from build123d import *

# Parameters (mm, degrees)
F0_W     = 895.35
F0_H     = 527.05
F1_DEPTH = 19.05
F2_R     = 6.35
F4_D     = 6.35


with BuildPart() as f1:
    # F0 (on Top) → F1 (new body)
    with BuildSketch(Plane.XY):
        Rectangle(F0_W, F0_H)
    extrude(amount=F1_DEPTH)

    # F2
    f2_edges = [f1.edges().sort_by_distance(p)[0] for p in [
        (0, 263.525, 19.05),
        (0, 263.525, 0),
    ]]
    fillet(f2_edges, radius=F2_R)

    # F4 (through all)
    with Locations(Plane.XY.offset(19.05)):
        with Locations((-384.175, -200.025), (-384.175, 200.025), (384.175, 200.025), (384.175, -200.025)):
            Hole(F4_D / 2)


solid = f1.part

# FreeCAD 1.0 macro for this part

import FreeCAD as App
import Part
import Sketcher
from FreeCAD import Vector
Q = App.Units.Quantity


def edges_at(feature, points):
    """Names of the edges that pass closest to the given points."""
    edges = feature.Shape.Edges
    near = lambda p: min(range(len(edges)), key=lambda i: edges[i].distToShape(Part.Vertex(*p))[0])
    return sorted({f"Edge{near(p) + 1}" for p in points})

doc = App.newDocument("Part")
params = doc.addObject("Spreadsheet::Sheet", "Params")
for row, (alias, value) in enumerate([
    ("sketch1_width", "35.25 in"),
    ("sketch1_height", "20.75 in"),
    ("pad1_length", "0.75 in"),
    ("fillet_radius", "0.25 in"),
    ("sketch2_diameter", "0.25 in"),
    ("hole_diameter", "0.25 in"),
], start=1):
    params.set(f"A{row}", alias)
    params.set(f"B{row}", "=" + value)
    params.setAlias(f"B{row}", alias)

body = doc.addObject("PartDesign::Body", "Body")

# Sketch on XY plane
sketch1 = body.newObject("Sketcher::SketchObject", "Sketch")
sketch1.AttachmentSupport = (doc.getObject("XY_Plane"), [""])
sketch1.MapMode = "FlatFace"
sketch1.addGeometry([
    Part.LineSegment(Vector(-448, 264, 0), Vector(-448, -264, 0)),
    Part.LineSegment(Vector(-448, -264, 0), Vector(448, -264, 0)),
    Part.LineSegment(Vector(448, -264, 0), Vector(448, 264, 0)),
    Part.LineSegment(Vector(448, 264, 0), Vector(-448, 264, 0)),
], False)
sketch1.addConstraint([
    Sketcher.Constraint("Coincident", 0, 2, 1, 1),
    Sketcher.Constraint("Coincident", 1, 2, 2, 1),
    Sketcher.Constraint("Coincident", 2, 2, 3, 1),
    Sketcher.Constraint("Coincident", 3, 2, 0, 1),
    Sketcher.Constraint("Vertical", 0),
    Sketcher.Constraint("Horizontal", 1),
    Sketcher.Constraint("Vertical", 2),
    Sketcher.Constraint("Horizontal", 3),
    Sketcher.Constraint("Symmetric", 0, 2, 2, 2, -1, 1),
    Sketcher.Constraint("DistanceX", 1, 1, 1, 2, Q("35.25 in")),
    Sketcher.Constraint("DistanceY", 0, 2, 0, 1, Q("20.75 in")),
])
sketch1.setExpression("Constraints[9]", "Params.sketch1_width")
sketch1.setExpression("Constraints[10]", "Params.sketch1_height")
pad1 = body.newObject("PartDesign::Pad", "Pad")
pad1.Profile = sketch1
pad1.setExpression("Length", "Params.pad1_length")
doc.recompute()

fillet = body.newObject("PartDesign::Fillet", "Fillet")
fillet.Base = (pad1, edges_at(pad1, [(0, 263.525, 19.05), (0, 263.525, 0)]))
fillet.setExpression("Radius", "Params.fillet_radius")

# Sketch on XY plane
sketch2 = body.newObject("Sketcher::SketchObject", "Sketch001")
sketch2.AttachmentSupport = (doc.getObject("XY_Plane"), [""])
sketch2.MapMode = "FlatFace"
sketch2.AttachmentOffset = App.Placement(Vector(0, 0, 0.75 * 25.4), App.Rotation())
sketch2.addGeometry([
    Part.Circle(Vector(-384.2, -200, 0), Vector(0, 0, 1), 3.2),
    Part.Circle(Vector(-384.2, 200, 0), Vector(0, 0, 1), 3.2),
    Part.Circle(Vector(384.2, 200, 0), Vector(0, 0, 1), 3.2),
    Part.Circle(Vector(384.2, -200, 0), Vector(0, 0, 1), 3.2),
], False)
sketch2.addConstraint([
    Sketcher.Constraint("Equal", 0, 1),
    Sketcher.Constraint("Equal", 1, 2),
    Sketcher.Constraint("Equal", 2, 3),
    Sketcher.Constraint("Symmetric", 0, 3, 2, 3, -1, 1),
    Sketcher.Constraint("Symmetric", 1, 3, 3, 3, -1, 1),
    Sketcher.Constraint("Symmetric", 1, 3, 2, 3, -2),
    Sketcher.Constraint("Diameter", 0, Q("0.25 in")),
    Sketcher.Constraint("DistanceY", 0, 3, 1, 3, Q("15.75 in")),
    Sketcher.Constraint("DistanceX", 1, 3, 2, 3, Q("30.25 in")),
])
sketch2.setExpression("Constraints[6]", "Params.sketch2_diameter")
doc.recompute()
hole = body.newObject("PartDesign::Hole", "Hole")
hole.Profile = sketch2
hole.ThreadType = "None"
hole.setExpression("Diameter", "Params.hole_diameter")
hole.DepthType = "ThroughAll"

doc.recompute()
